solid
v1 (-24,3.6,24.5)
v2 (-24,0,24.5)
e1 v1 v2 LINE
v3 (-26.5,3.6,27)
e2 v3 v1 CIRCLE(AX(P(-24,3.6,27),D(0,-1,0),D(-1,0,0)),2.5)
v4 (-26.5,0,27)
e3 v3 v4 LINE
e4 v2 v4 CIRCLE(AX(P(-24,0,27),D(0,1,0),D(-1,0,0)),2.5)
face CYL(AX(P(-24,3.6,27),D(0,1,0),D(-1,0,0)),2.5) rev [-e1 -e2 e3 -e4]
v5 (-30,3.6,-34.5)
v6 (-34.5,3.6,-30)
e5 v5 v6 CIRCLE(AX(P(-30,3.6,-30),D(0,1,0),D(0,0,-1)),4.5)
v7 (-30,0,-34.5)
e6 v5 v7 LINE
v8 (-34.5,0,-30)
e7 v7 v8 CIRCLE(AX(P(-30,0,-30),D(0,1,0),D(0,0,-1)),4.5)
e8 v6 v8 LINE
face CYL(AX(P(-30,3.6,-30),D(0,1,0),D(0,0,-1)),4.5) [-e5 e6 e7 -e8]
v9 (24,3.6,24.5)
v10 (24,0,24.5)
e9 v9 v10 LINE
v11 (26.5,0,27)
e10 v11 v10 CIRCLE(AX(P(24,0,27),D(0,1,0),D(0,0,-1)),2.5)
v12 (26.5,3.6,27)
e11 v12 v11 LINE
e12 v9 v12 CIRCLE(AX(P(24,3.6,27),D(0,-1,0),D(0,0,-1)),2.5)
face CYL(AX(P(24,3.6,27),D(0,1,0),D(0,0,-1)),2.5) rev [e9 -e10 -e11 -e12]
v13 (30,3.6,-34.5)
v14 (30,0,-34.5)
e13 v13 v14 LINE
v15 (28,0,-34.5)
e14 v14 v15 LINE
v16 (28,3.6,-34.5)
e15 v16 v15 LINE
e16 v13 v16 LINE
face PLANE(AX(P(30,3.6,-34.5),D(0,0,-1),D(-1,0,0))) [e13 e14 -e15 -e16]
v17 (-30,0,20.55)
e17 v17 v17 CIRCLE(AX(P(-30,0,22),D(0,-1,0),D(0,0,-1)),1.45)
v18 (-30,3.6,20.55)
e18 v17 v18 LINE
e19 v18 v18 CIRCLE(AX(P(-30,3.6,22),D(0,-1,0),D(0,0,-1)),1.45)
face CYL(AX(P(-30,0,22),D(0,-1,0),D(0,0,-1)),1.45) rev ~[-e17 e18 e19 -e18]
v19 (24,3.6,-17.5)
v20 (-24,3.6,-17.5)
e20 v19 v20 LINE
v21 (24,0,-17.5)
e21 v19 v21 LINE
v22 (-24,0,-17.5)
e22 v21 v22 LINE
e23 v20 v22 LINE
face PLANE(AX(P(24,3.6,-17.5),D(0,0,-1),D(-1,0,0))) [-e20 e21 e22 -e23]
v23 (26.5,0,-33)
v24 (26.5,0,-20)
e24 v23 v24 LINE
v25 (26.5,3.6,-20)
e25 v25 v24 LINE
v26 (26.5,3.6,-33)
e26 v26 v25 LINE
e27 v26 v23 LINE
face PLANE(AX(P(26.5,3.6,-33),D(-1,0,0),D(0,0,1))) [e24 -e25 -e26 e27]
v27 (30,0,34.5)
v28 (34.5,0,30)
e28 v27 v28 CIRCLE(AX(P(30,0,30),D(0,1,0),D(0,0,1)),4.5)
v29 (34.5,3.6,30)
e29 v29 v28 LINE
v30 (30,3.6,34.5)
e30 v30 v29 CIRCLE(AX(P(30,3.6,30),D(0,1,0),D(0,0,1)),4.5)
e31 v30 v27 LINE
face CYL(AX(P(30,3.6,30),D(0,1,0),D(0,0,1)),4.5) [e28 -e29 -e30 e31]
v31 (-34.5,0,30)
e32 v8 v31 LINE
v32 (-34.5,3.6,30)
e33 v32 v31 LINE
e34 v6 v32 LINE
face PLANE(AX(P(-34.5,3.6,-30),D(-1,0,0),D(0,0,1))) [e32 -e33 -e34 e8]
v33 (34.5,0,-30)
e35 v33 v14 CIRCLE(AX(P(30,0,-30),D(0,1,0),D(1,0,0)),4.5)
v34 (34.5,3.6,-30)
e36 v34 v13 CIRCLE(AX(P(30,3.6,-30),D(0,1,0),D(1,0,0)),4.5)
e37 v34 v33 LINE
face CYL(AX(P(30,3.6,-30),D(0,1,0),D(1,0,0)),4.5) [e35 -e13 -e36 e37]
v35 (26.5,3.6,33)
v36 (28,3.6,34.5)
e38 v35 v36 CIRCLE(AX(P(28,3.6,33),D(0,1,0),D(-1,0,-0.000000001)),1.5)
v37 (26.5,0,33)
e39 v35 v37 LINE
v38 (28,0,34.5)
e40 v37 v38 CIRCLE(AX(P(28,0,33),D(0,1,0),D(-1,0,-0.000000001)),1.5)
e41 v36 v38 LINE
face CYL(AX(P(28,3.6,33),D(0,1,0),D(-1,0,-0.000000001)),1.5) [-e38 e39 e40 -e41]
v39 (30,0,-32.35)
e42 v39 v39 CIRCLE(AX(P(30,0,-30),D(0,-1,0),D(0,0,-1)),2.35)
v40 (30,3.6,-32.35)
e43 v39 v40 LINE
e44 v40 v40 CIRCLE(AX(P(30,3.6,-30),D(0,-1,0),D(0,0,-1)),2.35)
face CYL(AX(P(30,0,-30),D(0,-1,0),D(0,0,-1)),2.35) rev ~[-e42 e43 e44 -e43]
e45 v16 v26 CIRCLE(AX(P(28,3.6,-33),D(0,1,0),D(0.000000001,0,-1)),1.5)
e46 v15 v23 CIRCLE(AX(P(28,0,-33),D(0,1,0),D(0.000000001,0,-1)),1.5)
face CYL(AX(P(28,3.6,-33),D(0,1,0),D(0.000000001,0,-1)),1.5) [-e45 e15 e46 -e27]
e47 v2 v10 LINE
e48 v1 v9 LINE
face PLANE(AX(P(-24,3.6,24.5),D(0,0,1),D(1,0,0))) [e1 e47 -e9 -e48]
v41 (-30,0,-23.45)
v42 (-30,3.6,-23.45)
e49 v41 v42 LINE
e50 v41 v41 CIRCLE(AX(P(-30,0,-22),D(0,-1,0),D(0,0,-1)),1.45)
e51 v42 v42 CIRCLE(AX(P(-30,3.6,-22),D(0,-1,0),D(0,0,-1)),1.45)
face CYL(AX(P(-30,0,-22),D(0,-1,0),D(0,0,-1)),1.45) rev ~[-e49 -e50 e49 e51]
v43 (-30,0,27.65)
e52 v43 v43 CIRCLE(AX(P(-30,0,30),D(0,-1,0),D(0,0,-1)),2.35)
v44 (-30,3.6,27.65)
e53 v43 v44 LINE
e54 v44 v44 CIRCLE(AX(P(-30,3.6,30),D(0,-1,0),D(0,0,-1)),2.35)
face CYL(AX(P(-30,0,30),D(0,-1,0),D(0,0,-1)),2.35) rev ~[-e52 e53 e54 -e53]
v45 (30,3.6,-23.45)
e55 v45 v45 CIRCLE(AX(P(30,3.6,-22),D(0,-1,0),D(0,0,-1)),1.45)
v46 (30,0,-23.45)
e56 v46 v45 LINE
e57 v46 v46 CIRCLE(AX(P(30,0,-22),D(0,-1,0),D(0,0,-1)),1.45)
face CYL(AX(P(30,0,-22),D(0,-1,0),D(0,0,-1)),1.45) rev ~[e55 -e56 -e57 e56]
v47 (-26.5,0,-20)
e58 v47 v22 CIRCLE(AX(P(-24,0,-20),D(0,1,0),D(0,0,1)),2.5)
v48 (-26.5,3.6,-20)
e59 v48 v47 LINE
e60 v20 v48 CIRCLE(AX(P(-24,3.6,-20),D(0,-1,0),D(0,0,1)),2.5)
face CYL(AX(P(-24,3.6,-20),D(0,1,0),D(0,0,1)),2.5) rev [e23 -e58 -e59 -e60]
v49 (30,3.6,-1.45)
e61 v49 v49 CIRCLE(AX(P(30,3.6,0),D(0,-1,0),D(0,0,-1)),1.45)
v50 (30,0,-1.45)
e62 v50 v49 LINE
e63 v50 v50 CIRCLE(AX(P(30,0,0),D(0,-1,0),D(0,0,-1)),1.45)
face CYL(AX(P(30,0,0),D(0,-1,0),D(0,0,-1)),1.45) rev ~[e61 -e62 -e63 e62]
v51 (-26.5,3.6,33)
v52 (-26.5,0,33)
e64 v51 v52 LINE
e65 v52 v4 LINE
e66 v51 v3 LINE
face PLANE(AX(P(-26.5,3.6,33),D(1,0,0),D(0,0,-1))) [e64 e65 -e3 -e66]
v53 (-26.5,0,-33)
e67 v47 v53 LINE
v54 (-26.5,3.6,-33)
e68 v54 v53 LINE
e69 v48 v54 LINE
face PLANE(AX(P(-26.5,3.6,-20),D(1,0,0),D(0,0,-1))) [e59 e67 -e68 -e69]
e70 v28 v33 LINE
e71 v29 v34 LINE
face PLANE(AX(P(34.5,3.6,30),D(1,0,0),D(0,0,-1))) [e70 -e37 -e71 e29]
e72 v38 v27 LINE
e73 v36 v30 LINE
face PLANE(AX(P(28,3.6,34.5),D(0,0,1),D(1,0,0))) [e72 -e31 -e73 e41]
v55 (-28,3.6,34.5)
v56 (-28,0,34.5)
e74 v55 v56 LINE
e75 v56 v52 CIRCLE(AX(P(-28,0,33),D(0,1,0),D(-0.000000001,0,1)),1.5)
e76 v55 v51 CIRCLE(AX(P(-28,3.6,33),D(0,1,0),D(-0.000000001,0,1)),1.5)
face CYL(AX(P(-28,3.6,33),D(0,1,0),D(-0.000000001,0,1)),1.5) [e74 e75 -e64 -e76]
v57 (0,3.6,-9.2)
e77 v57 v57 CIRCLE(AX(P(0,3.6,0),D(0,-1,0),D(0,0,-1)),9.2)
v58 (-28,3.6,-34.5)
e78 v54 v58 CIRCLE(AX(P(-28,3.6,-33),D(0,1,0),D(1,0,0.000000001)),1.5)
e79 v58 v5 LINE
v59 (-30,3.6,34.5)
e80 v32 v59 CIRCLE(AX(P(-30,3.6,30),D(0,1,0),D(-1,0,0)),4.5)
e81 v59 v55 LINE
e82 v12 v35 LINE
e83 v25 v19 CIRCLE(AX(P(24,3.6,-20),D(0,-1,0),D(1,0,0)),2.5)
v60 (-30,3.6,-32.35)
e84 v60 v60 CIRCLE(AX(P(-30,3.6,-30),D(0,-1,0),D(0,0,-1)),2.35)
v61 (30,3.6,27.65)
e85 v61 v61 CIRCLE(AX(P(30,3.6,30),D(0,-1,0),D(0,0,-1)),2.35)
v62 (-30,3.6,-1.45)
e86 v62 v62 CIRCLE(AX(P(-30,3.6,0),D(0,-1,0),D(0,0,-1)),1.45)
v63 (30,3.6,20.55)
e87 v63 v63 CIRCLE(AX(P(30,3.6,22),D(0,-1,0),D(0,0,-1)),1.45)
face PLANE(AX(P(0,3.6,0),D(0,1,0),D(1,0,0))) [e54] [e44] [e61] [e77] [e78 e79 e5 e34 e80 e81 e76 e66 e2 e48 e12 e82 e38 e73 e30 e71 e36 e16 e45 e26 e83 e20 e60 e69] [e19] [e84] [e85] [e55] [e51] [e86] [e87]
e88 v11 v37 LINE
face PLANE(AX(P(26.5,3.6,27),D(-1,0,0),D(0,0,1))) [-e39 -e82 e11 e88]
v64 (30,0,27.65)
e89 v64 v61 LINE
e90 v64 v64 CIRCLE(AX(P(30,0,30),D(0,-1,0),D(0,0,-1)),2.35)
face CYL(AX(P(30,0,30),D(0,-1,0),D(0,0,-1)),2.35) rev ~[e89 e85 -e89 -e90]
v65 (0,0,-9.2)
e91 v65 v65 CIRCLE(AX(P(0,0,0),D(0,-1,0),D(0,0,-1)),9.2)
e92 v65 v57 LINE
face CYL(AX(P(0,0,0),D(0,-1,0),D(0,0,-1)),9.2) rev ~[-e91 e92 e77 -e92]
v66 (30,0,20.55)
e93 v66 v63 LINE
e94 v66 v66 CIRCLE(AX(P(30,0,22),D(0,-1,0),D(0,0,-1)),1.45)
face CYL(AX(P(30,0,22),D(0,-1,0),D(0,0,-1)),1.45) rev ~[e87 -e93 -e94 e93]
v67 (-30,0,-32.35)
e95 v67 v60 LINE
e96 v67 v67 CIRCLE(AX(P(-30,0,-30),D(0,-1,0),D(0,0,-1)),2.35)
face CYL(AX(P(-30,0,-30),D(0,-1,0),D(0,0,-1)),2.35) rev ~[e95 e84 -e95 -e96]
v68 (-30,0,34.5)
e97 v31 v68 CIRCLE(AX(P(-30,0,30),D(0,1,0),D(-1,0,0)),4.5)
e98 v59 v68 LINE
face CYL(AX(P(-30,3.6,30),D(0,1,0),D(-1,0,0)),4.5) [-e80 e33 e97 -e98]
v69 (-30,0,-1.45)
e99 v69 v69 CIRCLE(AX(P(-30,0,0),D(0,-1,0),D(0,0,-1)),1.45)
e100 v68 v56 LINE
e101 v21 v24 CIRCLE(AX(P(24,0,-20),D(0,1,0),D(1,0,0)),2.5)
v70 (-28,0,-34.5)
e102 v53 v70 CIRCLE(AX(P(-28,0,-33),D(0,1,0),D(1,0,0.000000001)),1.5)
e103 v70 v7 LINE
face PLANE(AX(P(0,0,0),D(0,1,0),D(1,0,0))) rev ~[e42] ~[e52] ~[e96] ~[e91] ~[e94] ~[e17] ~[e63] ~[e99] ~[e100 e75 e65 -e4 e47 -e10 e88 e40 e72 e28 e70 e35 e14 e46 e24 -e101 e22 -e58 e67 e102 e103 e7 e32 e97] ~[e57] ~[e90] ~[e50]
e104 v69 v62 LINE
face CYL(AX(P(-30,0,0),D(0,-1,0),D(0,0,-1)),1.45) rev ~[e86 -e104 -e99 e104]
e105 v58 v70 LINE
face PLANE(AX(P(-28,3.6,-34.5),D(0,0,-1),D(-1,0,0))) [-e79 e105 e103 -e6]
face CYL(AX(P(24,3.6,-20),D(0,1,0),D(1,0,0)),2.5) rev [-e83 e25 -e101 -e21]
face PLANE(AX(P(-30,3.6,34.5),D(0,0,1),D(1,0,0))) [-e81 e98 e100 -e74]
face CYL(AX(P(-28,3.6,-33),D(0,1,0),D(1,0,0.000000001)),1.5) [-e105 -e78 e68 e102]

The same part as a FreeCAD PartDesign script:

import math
import FreeCAD as App
import Part
import Sketcher

V = App.Vector
Q = App.Units.Quantity


def add_polygon(sketch, points):
    """Adds a closed chain of lines whose ends are joined by coincident constraints."""
    first, n = sketch.GeometryCount, len(points)
    for a, b in zip(points, points[1:] + points[:1]):
        sketch.addGeometry(Part.LineSegment(App.Vector(*a, 0), App.Vector(*b, 0)), False)
    for i in range(n):
        sketch.addConstraint(Sketcher.Constraint("Coincident", first + i, 2, first + (i + 1) % n, 1))

doc = App.newDocument("Part")
body = doc.addObject("PartDesign::Body", "Body")

# Sketch on XZ plane
sketch1 = body.newObject("Sketcher::SketchObject", "Sketch")
sketch1.AttachmentSupport = (doc.getObject("XZ_Plane"), [""])
sketch1.MapMode = "FlatFace"
add_polygon(sketch1, [(-35, -35), (-35, 35), (35, 35), (35, -35)])  # lines 0-3
sketch1.addConstraint([
    Sketcher.Constraint("Vertical", 0),
    Sketcher.Constraint("Horizontal", 1),
    Sketcher.Constraint("Vertical", 2),
    Sketcher.Constraint("Horizontal", 3),
    Sketcher.Constraint("Symmetric", 0, 2, 2, 2, -1, 1),
    Sketcher.Constraint("Equal", 3, 0),
    Sketcher.Constraint("DistanceX", 1, 1, 1, 2, Q("70 mm")),
])
pad1 = body.newObject("PartDesign::Pad", "Pad")
pad1.Profile = sketch1
pad1.Length = 3.6
pad1.Reversed = True

# Sketch on XZ plane
sketch2 = body.newObject("Sketcher::SketchObject", "Sketch001")
sketch2.AttachmentSupport = (doc.getObject("XZ_Plane"), [""])
sketch2.MapMode = "FlatFace"
sketch2.AttachmentOffset = App.Placement(V(0, 0, -3.6), App.Rotation())
add_polygon(sketch2, [(-43.884137, -42.858234), (-43.884137, 42.858234), (43.884137, 42.858234), (43.884137, -42.858234)])  # lines 0-3
sketch2.addGeometry(Part.LineSegment(V(28, -34.5, 0), V(30, -34.5, 0)), False)  # 4
sketch2.addGeometry(Part.ArcOfCircle(Part.Circle(V(30, -30, 0), V(0, 0, 1), 4.5), math.radians(-90), math.radians(0)), False)  # 5
sketch2.addGeometry(Part.LineSegment(V(34.5, -30, 0), V(34.5, 30, 0)), False)  # 6
sketch2.addGeometry(Part.ArcOfCircle(Part.Circle(V(30, 30, 0), V(0, 0, 1), 4.5), math.radians(0), math.radians(90)), False)  # 7
sketch2.addGeometry(Part.LineSegment(V(30, 34.5, 0), V(28, 34.5, 0)), False)  # 8
sketch2.addGeometry(Part.ArcOfCircle(Part.Circle(V(28, 33, 0), V(0, 0, 1), 1.5), math.radians(90), math.radians(180)), False)  # 9
sketch2.addGeometry(Part.LineSegment(V(26.5, 33, 0), V(26.5, 27, 0)), False)  # 10
sketch2.addGeometry(Part.ArcOfCircle(Part.Circle(V(24, 27, 0), V(0, 0, 1), 2.5), math.radians(-90), math.radians(0)), False)  # 11
sketch2.addGeometry(Part.LineSegment(V(24, 24.5, 0), V(-24, 24.5, 0)), False)  # 12
sketch2.addGeometry(Part.ArcOfCircle(Part.Circle(V(-24, 27, 0), V(0, 0, 1), 2.5), math.radians(180), math.radians(270)), False)  # 13
sketch2.addGeometry(Part.LineSegment(V(-26.5, 27, 0), V(-26.5, 33, 0)), False)  # 14
sketch2.addGeometry(Part.ArcOfCircle(Part.Circle(V(-28, 33, 0), V(0, 0, 1), 1.5), math.radians(0), math.radians(90)), False)  # 15
sketch2.addGeometry(Part.LineSegment(V(-28, 34.5, 0), V(-30, 34.5, 0)), False)  # 16
sketch2.addGeometry(Part.ArcOfCircle(Part.Circle(V(-30, 30, 0), V(0, 0, 1), 4.5), math.radians(90), math.radians(180)), False)  # 17
sketch2.addGeometry(Part.LineSegment(V(-34.5, 30, 0), V(-34.5, -30, 0)), False)  # 18
sketch2.addGeometry(Part.ArcOfCircle(Part.Circle(V(-30, -30, 0), V(0, 0, 1), 4.5), math.radians(-180), math.radians(-90)), False)  # 19
sketch2.addGeometry(Part.LineSegment(V(-30, -34.5, 0), V(-28, -34.5, 0)), False)  # 20
sketch2.addGeometry(Part.ArcOfCircle(Part.Circle(V(-28, -33, 0), V(0, 0, 1), 1.5), math.radians(-90), math.radians(0)), False)  # 21
sketch2.addGeometry(Part.LineSegment(V(-26.5, -33, 0), V(-26.5, -20, 0)), False)  # 22
sketch2.addGeometry(Part.ArcOfCircle(Part.Circle(V(-24, -20, 0), V(0, 0, 1), 2.5), math.radians(90), math.radians(180)), False)  # 23
sketch2.addGeometry(Part.LineSegment(V(-24, -17.5, 0), V(24, -17.5, 0)), False)  # 24
sketch2.addGeometry(Part.ArcOfCircle(Part.Circle(V(24, -20, 0), V(0, 0, 1), 2.5), math.radians(0), math.radians(90)), False)  # 25
sketch2.addGeometry(Part.LineSegment(V(26.5, -20, 0), V(26.5, -33, 0)), False)  # 26
sketch2.addGeometry(Part.ArcOfCircle(Part.Circle(V(28, -33, 0), V(0, 0, 1), 1.5), math.radians(180), math.radians(270)), False)  # 27
sketch2.addConstraint([
    Sketcher.Constraint("Tangent", 4, 2, 5, 1),
    Sketcher.Constraint("Tangent", 5, 2, 6, 1),
    Sketcher.Constraint("Tangent", 6, 2, 7, 1),
    Sketcher.Constraint("Tangent", 7, 2, 8, 1),
    Sketcher.Constraint("Tangent", 8, 2, 9, 1),
    Sketcher.Constraint("Tangent", 9, 2, 10, 1),
    Sketcher.Constraint("Tangent", 10, 2, 11, 2),
    Sketcher.Constraint("Tangent", 11, 1, 12, 1),
    Sketcher.Constraint("Tangent", 12, 2, 13, 2),
    Sketcher.Constraint("Tangent", 13, 1, 14, 1),
    Sketcher.Constraint("Tangent", 14, 2, 15, 1),
    Sketcher.Constraint("Tangent", 15, 2, 16, 1),
    Sketcher.Constraint("Tangent", 16, 2, 17, 1),
    Sketcher.Constraint("Tangent", 17, 2, 18, 1),
    Sketcher.Constraint("Tangent", 18, 2, 19, 1),
    Sketcher.Constraint("Tangent", 19, 2, 20, 1),
    Sketcher.Constraint("Tangent", 20, 2, 21, 1),
    Sketcher.Constraint("Tangent", 21, 2, 22, 1),
    Sketcher.Constraint("Tangent", 22, 2, 23, 2),
    Sketcher.Constraint("Tangent", 23, 1, 24, 1),
    Sketcher.Constraint("Tangent", 24, 2, 25, 2),
    Sketcher.Constraint("Tangent", 25, 1, 26, 1),
    Sketcher.Constraint("Tangent", 26, 2, 27, 1),
    Sketcher.Constraint("Tangent", 27, 2, 4, 1),
    Sketcher.Constraint("Vertical", 0),
    Sketcher.Constraint("Horizontal", 1),
    Sketcher.Constraint("Vertical", 2),
    Sketcher.Constraint("Horizontal", 3),
    Sketcher.Constraint("Horizontal", 4),
    Sketcher.Constraint("Vertical", 6),
    Sketcher.Constraint("Horizontal", 8),
    Sketcher.Constraint("Vertical", 10),
    Sketcher.Constraint("Horizontal", 12),
    Sketcher.Constraint("Vertical", 14),
    Sketcher.Constraint("Horizontal", 16),
    Sketcher.Constraint("Vertical", 18),
    Sketcher.Constraint("Horizontal", 20),
    Sketcher.Constraint("Vertical", 22),
    Sketcher.Constraint("Horizontal", 24),
    Sketcher.Constraint("Vertical", 26),
    Sketcher.Constraint("Equal", 5, 7),
    Sketcher.Constraint("Equal", 11, 13),
    Sketcher.Constraint("Equal", 9, 15),
    Sketcher.Constraint("Equal", 7, 17),
    Sketcher.Constraint("Equal", 17, 19),
    Sketcher.Constraint("Equal", 15, 21),
    Sketcher.Constraint("Equal", 13, 23),
    Sketcher.Constraint("Equal", 23, 25),
    Sketcher.Constraint("Equal", 21, 27),
    Sketcher.Constraint("Symmetric", 5, 3, 17, 3, -1, 1),
    Sketcher.Constraint("Symmetric", 9, 3, 21, 3, -1, 1),
    Sketcher.Constraint("Symmetric", 0, 2, 2, 2, -1, 1),
    Sketcher.Constraint("Symmetric", 9, 3, 15, 3, -2),
    Sketcher.Constraint("Vertical", 11, 3, 25, 3),
    Sketcher.Constraint("Radius", 5, Q("4.5 mm")),
    Sketcher.Constraint("Radius", 9, Q("1.5 mm")),
    Sketcher.Constraint("Radius", 11, Q("2.5 mm")),
    Sketcher.Constraint("DistanceX", 4, 1, 4, 2, Q("2 mm")),
    Sketcher.Constraint("DistanceX", 12, 2, 12, 1, Q("48 mm")),
    Sketcher.Constraint("DistanceY", 6, 1, 6, 2, Q("60 mm")),
    Sketcher.Constraint("DistanceY", 10, 2, 10, 1, Q("6 mm")),
    Sketcher.Constraint("DistanceY", 22, 1, 22, 2, Q("13 mm")),
    Sketcher.Constraint("DistanceY", 0, 1, 0, 2, Q("85.716468 mm")),
    Sketcher.Constraint("DistanceX", 1, 1, 1, 2, Q("87.768274 mm")),
])
pocket1 = body.newObject("PartDesign::Pocket", "Pocket")
pocket1.Profile = sketch2
pocket1.Length = 10
pocket1.Reversed = True

# Sketch on XZ plane
sketch3 = body.newObject("Sketcher::SketchObject", "Sketch002")
sketch3.AttachmentSupport = (doc.getObject("XZ_Plane"), [""])
sketch3.MapMode = "FlatFace"
sketch3.addGeometry([
    Part.Circle(V(30, -30, 0), V(0, 0, 1), 2.35),  # 0
    Part.Circle(V(30, -22, 0), V(0, 0, 1), 1.45),  # 1
    Part.Circle(V(30, 0, 0), V(0, 0, 1), 1.45),  # 2
    Part.Circle(V(30, 22, 0), V(0, 0, 1), 1.45),  # 3
    Part.Circle(V(30, 30, 0), V(0, 0, 1), 2.35),  # 4
    Part.Circle(V(-30, -30, 0), V(0, 0, 1), 2.35),  # 5
    Part.Circle(V(-30, -22, 0), V(0, 0, 1), 1.45),  # 6
    Part.Circle(V(0, 0, 0), V(0, 0, 1), 9.2),  # 7
    Part.Circle(V(-30, 0, 0), V(0, 0, 1), 1.45),  # 8
    Part.Circle(V(-30, 22, 0), V(0, 0, 1), 1.45),  # 9
    Part.Circle(V(-30, 30, 0), V(0, 0, 1), 2.35),  # 10
], False)
sketch3.addConstraint([
    Sketcher.Constraint("Coincident", 7, 3, -1, 1),
    Sketcher.Constraint("Equal", 1, 2),
    Sketcher.Constraint("Equal", 2, 3),
    Sketcher.Constraint("Equal", 0, 4),
    Sketcher.Constraint("Equal", 4, 5),
    Sketcher.Constraint("Equal", 3, 6),
    Sketcher.Constraint("Equal", 6, 8),
    Sketcher.Constraint("Equal", 8, 9),
    Sketcher.Constraint("Equal", 5, 10),
    Sketcher.Constraint("Symmetric", 4, 3, 5, 3, -1, 1),
    Sketcher.Constraint("Symmetric", 3, 3, 6, 3, -1, 1),
    Sketcher.Constraint("Symmetric", 2, 3, 8, 3, -1, 1),
    Sketcher.Constraint("Symmetric", 1, 3, 9, 3, -1, 1),
    Sketcher.Constraint("Symmetric", 0, 3, 10, 3, -1, 1),
    Sketcher.Constraint("Symmetric", 0, 3, 5, 3, -2),
    Sketcher.Constraint("Symmetric", 1, 3, 6, 3, -2),
    Sketcher.Constraint("PointOnObject", 2, 3, -1),
    Sketcher.Constraint("Vertical", 0, 3, 1, 3),
    Sketcher.Constraint("Vertical", 1, 3, 2, 3),
    Sketcher.Constraint("Diameter", 0, Q("4.7 mm")),
    Sketcher.Constraint("Diameter", 1, Q("2.9 mm")),
    Sketcher.Constraint("Diameter", 7, Q("18.4 mm")),
    Sketcher.Constraint("DistanceX", -1, 1, 0, 3, Q("30 mm")),
    Sketcher.Constraint("DistanceY", 0, 3, -1, 1, Q("30 mm")),
    Sketcher.Constraint("DistanceY", 1, 3, -1, 1, Q("22 mm")),
])
pocket2 = body.newObject("PartDesign::Pocket", "Pocket001")
pocket2.Profile = sketch3
pocket2.Length = 10

doc.recompute()
